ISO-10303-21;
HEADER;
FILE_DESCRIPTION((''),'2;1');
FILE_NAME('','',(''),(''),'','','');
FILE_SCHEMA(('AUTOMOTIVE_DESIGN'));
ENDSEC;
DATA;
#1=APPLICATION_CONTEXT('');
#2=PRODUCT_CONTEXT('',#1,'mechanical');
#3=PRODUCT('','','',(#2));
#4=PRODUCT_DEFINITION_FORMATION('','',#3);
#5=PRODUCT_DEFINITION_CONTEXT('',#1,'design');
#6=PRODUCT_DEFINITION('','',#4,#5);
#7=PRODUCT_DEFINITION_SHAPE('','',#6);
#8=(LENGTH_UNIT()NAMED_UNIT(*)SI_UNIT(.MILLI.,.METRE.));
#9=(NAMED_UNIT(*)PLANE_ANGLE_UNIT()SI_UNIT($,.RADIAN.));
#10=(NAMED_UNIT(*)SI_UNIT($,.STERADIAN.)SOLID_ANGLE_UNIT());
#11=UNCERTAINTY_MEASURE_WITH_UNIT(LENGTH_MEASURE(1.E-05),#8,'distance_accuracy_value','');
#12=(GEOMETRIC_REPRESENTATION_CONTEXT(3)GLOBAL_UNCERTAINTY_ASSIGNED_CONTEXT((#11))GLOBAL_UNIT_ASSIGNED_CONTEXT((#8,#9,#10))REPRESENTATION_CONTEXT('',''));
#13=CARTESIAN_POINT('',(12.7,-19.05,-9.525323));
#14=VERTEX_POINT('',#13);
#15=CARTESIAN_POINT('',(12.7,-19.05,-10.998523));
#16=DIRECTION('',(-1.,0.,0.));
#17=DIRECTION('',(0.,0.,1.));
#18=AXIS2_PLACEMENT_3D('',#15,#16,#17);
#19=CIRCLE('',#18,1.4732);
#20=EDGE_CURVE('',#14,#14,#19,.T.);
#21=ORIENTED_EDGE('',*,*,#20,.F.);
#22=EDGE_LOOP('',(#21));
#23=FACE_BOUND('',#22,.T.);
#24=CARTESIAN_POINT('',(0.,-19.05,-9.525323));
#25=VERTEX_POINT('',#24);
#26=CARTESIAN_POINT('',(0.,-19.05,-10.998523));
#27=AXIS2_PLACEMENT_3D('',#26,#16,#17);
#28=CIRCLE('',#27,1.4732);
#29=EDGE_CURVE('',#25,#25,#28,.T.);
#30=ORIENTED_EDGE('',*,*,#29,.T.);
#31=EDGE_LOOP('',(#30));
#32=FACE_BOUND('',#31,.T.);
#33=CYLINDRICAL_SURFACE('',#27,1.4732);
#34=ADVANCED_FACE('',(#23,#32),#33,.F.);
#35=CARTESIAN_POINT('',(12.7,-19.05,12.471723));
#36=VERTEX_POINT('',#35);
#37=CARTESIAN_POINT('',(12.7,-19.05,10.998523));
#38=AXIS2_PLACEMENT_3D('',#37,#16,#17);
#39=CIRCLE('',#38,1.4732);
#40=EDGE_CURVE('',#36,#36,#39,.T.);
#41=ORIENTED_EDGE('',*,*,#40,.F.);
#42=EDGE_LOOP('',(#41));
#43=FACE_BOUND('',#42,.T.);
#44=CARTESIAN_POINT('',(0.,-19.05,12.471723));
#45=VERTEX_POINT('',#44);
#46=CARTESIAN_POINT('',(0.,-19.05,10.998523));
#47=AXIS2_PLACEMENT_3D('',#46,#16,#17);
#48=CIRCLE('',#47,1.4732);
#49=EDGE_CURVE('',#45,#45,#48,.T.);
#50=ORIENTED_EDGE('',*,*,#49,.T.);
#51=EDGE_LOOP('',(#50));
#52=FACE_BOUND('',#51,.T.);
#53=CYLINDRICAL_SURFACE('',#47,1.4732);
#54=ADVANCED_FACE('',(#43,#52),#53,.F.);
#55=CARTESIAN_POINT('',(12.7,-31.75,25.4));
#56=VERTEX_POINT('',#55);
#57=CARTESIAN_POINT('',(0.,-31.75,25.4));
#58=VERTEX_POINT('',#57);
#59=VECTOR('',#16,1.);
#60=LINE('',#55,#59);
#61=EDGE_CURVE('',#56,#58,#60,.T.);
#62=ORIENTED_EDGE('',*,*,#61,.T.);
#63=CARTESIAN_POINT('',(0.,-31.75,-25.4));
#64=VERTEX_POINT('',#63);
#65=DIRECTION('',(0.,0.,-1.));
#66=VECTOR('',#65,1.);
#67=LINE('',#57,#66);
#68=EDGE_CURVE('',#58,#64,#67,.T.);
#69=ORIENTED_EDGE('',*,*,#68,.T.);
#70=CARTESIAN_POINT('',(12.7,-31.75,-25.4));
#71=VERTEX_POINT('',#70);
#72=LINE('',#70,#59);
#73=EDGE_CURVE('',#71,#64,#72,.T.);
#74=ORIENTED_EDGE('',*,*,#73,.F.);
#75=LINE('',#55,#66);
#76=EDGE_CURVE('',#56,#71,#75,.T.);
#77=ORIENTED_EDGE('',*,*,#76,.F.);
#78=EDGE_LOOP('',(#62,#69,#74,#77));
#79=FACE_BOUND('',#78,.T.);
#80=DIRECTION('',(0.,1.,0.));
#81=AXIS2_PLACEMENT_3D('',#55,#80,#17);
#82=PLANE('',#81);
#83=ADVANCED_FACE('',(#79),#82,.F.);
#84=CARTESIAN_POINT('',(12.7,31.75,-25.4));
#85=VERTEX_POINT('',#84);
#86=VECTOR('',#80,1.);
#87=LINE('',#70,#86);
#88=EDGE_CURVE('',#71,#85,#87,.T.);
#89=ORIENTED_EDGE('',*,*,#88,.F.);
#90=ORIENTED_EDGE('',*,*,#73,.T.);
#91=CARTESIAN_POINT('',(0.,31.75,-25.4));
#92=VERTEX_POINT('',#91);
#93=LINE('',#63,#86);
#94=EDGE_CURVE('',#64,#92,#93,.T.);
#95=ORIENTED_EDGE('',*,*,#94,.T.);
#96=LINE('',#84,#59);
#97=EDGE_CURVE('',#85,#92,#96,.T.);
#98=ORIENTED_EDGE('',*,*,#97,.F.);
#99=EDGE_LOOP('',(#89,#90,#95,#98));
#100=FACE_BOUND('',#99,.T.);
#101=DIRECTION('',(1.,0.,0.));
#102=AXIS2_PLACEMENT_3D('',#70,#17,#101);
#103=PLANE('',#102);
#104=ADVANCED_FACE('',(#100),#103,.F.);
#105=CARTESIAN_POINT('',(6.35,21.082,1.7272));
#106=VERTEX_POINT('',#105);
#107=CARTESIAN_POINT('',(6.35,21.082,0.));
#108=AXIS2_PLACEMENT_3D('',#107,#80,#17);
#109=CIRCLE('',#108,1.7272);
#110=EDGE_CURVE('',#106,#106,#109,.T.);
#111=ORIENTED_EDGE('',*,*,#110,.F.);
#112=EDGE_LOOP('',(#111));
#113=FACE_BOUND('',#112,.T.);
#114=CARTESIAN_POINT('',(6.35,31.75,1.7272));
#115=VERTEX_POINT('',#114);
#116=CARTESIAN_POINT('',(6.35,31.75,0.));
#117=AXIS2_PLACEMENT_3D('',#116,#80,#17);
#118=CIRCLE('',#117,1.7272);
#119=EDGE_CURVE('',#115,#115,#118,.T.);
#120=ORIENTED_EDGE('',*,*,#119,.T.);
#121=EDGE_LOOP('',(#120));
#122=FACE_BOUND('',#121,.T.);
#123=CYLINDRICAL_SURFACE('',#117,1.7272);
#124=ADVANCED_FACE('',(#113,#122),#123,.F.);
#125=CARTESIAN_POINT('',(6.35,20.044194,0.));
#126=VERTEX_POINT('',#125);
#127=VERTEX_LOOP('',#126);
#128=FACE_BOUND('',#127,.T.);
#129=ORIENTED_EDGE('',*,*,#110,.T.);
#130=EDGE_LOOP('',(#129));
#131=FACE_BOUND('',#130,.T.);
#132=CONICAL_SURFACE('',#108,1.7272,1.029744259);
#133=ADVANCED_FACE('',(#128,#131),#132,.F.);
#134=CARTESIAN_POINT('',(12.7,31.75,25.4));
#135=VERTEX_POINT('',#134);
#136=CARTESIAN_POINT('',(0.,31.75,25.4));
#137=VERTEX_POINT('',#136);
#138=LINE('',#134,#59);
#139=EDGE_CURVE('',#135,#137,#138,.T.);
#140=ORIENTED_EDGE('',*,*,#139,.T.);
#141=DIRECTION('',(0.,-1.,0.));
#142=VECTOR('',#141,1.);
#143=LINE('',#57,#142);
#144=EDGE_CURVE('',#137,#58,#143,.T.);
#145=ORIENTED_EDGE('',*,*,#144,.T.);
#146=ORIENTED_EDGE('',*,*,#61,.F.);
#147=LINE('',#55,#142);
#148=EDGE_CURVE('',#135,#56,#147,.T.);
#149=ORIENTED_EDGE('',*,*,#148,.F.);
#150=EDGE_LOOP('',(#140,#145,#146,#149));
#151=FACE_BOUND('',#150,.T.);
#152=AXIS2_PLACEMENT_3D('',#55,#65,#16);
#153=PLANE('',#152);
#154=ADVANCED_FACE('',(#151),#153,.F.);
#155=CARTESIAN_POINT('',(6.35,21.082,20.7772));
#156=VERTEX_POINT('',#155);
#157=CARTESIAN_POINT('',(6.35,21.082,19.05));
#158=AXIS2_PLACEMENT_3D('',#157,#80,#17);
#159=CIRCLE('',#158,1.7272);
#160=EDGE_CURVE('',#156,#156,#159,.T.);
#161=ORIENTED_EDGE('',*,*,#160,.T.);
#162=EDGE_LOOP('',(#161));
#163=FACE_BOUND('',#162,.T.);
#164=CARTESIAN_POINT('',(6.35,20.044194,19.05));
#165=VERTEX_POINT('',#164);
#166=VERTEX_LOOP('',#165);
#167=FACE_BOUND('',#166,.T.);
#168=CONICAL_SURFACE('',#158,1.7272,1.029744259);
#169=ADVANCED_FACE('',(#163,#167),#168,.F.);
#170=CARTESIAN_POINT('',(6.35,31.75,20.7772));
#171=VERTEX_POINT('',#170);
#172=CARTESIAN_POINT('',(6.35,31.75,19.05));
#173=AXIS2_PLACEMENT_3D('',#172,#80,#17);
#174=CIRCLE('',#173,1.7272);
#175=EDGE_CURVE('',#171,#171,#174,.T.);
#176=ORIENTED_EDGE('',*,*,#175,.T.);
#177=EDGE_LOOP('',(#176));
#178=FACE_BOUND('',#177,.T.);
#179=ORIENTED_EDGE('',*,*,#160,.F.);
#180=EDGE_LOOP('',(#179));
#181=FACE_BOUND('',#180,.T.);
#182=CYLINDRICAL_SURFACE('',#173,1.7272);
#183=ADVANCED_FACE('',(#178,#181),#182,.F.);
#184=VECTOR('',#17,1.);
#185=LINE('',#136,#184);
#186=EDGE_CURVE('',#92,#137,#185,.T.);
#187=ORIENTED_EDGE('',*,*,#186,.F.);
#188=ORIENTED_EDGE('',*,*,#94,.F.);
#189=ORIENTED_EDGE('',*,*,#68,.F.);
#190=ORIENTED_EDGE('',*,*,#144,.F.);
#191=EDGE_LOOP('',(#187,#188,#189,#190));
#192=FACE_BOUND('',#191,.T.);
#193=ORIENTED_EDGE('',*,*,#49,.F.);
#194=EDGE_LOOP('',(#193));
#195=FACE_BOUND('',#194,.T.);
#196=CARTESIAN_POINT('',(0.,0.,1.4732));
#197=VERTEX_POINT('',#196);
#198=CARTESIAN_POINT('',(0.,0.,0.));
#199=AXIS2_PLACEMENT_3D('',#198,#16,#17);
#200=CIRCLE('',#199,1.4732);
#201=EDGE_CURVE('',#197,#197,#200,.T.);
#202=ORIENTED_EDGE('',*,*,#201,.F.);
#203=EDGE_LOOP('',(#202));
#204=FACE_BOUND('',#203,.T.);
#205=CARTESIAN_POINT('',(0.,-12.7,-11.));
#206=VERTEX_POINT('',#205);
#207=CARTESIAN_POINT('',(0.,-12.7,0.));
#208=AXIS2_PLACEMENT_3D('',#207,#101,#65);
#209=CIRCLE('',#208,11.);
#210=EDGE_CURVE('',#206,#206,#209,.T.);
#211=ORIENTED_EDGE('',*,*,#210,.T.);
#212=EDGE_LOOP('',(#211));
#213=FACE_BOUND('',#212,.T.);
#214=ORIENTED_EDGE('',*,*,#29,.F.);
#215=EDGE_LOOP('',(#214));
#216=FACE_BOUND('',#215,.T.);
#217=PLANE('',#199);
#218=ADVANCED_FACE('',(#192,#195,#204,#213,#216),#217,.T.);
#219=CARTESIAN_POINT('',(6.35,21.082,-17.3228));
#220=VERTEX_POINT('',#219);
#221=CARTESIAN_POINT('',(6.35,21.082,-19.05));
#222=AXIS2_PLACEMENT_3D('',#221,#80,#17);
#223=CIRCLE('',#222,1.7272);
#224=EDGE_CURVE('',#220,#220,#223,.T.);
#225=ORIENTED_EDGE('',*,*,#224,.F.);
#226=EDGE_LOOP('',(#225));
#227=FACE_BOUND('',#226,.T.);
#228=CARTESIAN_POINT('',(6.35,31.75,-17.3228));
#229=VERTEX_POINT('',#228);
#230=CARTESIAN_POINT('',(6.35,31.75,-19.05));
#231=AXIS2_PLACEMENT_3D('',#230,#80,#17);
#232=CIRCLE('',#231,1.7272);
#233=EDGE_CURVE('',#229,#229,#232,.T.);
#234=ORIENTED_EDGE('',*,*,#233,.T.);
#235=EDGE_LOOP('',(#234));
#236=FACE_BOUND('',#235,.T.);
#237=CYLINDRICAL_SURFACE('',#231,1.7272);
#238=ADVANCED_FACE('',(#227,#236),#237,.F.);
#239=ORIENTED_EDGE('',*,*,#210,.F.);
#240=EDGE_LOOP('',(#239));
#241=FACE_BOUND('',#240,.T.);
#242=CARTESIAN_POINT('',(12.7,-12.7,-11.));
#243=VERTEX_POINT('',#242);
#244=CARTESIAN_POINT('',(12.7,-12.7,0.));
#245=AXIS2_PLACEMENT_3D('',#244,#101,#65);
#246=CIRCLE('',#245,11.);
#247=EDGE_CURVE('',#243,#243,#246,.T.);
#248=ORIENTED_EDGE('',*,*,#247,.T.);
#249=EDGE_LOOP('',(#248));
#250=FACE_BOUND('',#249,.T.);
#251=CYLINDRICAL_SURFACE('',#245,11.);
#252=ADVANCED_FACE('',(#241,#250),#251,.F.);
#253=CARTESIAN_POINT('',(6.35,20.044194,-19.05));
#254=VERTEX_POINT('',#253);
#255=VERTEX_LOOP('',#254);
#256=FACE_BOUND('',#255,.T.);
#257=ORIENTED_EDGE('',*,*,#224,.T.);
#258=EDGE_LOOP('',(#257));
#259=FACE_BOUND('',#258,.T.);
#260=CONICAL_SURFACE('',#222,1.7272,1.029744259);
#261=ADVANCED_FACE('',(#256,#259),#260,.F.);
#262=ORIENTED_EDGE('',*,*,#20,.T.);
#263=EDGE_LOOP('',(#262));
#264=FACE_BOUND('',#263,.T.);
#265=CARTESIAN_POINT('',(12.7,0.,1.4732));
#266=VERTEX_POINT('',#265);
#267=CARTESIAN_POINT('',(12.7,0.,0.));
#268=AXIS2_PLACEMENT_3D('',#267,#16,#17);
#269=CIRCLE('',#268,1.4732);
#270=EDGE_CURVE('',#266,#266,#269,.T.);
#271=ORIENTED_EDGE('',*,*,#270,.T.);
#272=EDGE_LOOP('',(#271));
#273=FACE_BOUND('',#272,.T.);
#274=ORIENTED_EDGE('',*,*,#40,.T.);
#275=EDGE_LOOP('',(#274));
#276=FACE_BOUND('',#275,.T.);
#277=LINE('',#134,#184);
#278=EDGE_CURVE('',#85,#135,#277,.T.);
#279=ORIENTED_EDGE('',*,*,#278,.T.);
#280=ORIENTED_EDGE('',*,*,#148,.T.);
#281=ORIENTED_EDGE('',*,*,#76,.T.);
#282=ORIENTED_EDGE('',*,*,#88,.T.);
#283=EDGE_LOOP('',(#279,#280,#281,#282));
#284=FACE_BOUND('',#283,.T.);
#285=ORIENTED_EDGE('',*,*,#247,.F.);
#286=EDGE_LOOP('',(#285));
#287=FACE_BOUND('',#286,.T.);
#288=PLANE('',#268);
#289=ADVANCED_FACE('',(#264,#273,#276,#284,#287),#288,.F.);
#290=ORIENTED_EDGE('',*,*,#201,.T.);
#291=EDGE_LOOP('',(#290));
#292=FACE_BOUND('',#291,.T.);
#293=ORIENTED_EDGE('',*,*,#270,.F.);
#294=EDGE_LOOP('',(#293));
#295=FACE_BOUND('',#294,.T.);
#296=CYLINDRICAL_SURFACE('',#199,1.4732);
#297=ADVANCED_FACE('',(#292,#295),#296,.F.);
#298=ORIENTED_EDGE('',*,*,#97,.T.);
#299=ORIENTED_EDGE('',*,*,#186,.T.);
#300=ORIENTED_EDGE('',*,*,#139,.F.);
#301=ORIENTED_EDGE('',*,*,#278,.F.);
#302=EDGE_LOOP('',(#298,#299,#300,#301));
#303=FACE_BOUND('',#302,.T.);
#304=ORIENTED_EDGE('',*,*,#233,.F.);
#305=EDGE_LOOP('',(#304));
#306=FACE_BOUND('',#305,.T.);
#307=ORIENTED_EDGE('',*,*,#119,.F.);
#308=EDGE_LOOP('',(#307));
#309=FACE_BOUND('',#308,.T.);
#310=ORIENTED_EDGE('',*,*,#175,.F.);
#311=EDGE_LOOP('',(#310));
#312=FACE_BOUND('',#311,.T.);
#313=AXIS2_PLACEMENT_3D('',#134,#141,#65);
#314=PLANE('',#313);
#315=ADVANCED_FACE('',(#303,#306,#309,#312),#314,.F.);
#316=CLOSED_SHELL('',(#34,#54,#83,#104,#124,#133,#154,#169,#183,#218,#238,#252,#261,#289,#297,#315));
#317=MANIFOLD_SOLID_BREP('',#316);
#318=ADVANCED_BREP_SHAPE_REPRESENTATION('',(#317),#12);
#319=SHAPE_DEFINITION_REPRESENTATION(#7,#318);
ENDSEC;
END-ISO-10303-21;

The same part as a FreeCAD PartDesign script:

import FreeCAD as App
import Part
import Sketcher
Q = App.Units.Quantity


def add_polygon(sketch, points):
    """Adds a closed chain of lines whose ends are joined by coincident constraints."""
    first, n = sketch.GeometryCount, len(points)
    for a, b in zip(points, points[1:] + points[:1]):
        sketch.addGeometry(Part.LineSegment(App.Vector(*a, 0), App.Vector(*b, 0)), False)
    for i in range(n):
        sketch.addConstraint(Sketcher.Constraint("Coincident", first + i, 2, first + (i + 1) % n, 1))

doc = App.newDocument("Part")
params = doc.addObject("Spreadsheet::Sheet", "Params")
for row, (alias, value) in enumerate([
    ("sketch1_height", "2 in"),
    ("sketch1_width", "2.5 in"),
    ("pad1_length", "0.5 in"),
    ("hole_diameter", "22 mm"),
    ("sketch3_diameter", "0.136 in"),
    ("hole2_diameter", "0.136 in"),
    ("hole2_depth", "0.42 in"),
    ("sketch4_diameter", "0.116 in"),
    ("hole3_diameter", "0.116 in"),
], start=1):
    params.set(f"A{row}", alias)
    params.set(f"B{row}", "=" + value)
    params.setAlias(f"B{row}", alias)

body = doc.addObject("PartDesign::Body", "Body")

sketch1 = body.newObject("Sketcher::SketchObject", "Sketch")
sketch1.AttachmentSupport = (doc.getObject("YZ_Plane"), [""])
sketch1.MapMode = "FlatFace"
add_polygon(sketch1, [(32, 25), (-32, 25), (-32, -25), (32, -25)])
sketch1.addConstraint(Sketcher.Constraint("Horizontal", 0))
sketch1.addConstraint(Sketcher.Constraint("Vertical", 1))
sketch1.addConstraint(Sketcher.Constraint("Horizontal", 2))
sketch1.addConstraint(Sketcher.Constraint("Vertical", 3))
sketch1.addConstraint(Sketcher.Constraint("Symmetric", 0, 2, 2, 2, -1, 1))
sketch1.addConstraint(Sketcher.Constraint("DistanceY", 1, 2, 1, 1, Q("2 in")))
sketch1.addConstraint(Sketcher.Constraint("DistanceX", 0, 2, 0, 1, Q("2.5 in")))
sketch1.setExpression("Constraints[9]", "Params.sketch1_height")
sketch1.setExpression("Constraints[10]", "Params.sketch1_width")
pad1 = body.newObject("PartDesign::Pad", "Pad")
pad1.Profile = sketch1
pad1.setExpression("Length", "Params.pad1_length")

sketch2 = body.newObject("Sketcher::SketchObject", "Sketch001")
sketch2.AttachmentSupport = (doc.getObject("YZ_Plane"), [""])
sketch2.MapMode = "FlatFace"
sketch2.AttachmentOffset = App.Placement(App.Vector(0, 0, 0.5 * 25.4), App.Rotation())
sketch2.addGeometry(Part.Circle(App.Vector(-13, 0, 0), App.Vector(0, 0, 1), 11), False)
sketch2.addConstraint(Sketcher.Constraint("PointOnObject", 0, 3, -1))
sketch2.addConstraint(Sketcher.Constraint("DistanceX", 0, 3, -1, 1, Q("0.5 in")))
sketch2.addConstraint(Sketcher.Constraint("Diameter", 0, Q("22 mm")))
doc.recompute()
hole = body.newObject("PartDesign::Hole", "Hole")
hole.Profile = sketch2
hole.ThreadType = "None"
hole.setExpression("Diameter", "Params.hole_diameter")
hole.DepthType = "ThroughAll"

sketch3 = body.newObject("Sketcher::SketchObject", "Sketch002")
sketch3.AttachmentSupport = (doc.getObject("XZ_Plane"), [""])
sketch3.MapMode = "FlatFace"
sketch3.AttachmentOffset = App.Placement(App.Vector(0, 0, -1.25 * 25.4), App.Rotation())
sketch3.addGeometry(Part.Circle(App.Vector(6.3, -19.1, 0), App.Vector(0, 0, 1), 1.7), False)
sketch3.addGeometry(Part.Circle(App.Vector(6.3, 19.1, 0), App.Vector(0, 0, 1), 1.7), False)
sketch3.addGeometry(Part.Circle(App.Vector(6.3, 0, 0), App.Vector(0, 0, 1), 1.7), False)
sketch3.addConstraint(Sketcher.Constraint("Equal", 0, 1))
sketch3.addConstraint(Sketcher.Constraint("Equal", 1, 2))
sketch3.addConstraint(Sketcher.Constraint("Symmetric", 0, 3, 1, 3, -1))
sketch3.addConstraint(Sketcher.Constraint("PointOnObject", 2, 3, -1))
sketch3.addConstraint(Sketcher.Constraint("Vertical", 1, 3, 2, 3))
sketch3.addConstraint(Sketcher.Constraint("Diameter", 0, Q("0.136 in")))
sketch3.addConstraint(Sketcher.Constraint("DistanceY", 0, 3, 1, 3, Q("1.5 in")))
sketch3.addConstraint(Sketcher.Constraint("DistanceX", -1, 1, 0, 3, Q("0.25 in")))
sketch3.setExpression("Constraints[5]", "Params.sketch3_diameter")
doc.recompute()
hole2 = body.newObject("PartDesign::Hole", "Hole001")
hole2.Profile = sketch3
hole2.ThreadType = "None"
hole2.setExpression("Diameter", "Params.hole2_diameter")
hole2.DepthType = "Dimension"
hole2.setExpression("Depth", "Params.hole2_depth")
hole2.DrillPoint = "Angled"
hole2.DrillPointAngle = 118
hole2.Reversed = True

sketch4 = body.newObject("Sketcher::SketchObject", "Sketch003")
sketch4.AttachmentSupport = (doc.getObject("YZ_Plane"), [""])
sketch4.MapMode = "FlatFace"
sketch4.addGeometry(Part.Circle(App.Vector(0, 0, 0), App.Vector(0, 0, 1), 1.5), False)
sketch4.addConstraint(Sketcher.Constraint("Coincident", 0, 3, -1, 1))
sketch4.addConstraint(Sketcher.Constraint("Diameter", 0, Q("0.116 in")))
sketch4.setExpression("Constraints[1]", "Params.sketch4_diameter")
doc.recompute()
hole3 = body.newObject("PartDesign::Hole", "Hole002")
hole3.Profile = sketch4
hole3.ThreadType = "None"
hole3.setExpression("Diameter", "Params.hole3_diameter")
hole3.DepthType = "ThroughAll"
hole3.Reversed = True
doc.recompute()

datumline = body.newObject("PartDesign::Line", "DatumLine")
datumline.Placement = App.Placement(App.Vector(0, -12.7, 0), App.Rotation(App.Vector(0, 0, 1), App.Vector(1, 0, 0)))
polarpattern = body.newObject("PartDesign::PolarPattern", "PolarPattern")
polarpattern.Originals = [hole3]
polarpattern.Axis = (datumline, [""])
polarpattern.Angle = 360
polarpattern.Occurrences = 3
body.Tip = polarpattern

doc.recompute()
